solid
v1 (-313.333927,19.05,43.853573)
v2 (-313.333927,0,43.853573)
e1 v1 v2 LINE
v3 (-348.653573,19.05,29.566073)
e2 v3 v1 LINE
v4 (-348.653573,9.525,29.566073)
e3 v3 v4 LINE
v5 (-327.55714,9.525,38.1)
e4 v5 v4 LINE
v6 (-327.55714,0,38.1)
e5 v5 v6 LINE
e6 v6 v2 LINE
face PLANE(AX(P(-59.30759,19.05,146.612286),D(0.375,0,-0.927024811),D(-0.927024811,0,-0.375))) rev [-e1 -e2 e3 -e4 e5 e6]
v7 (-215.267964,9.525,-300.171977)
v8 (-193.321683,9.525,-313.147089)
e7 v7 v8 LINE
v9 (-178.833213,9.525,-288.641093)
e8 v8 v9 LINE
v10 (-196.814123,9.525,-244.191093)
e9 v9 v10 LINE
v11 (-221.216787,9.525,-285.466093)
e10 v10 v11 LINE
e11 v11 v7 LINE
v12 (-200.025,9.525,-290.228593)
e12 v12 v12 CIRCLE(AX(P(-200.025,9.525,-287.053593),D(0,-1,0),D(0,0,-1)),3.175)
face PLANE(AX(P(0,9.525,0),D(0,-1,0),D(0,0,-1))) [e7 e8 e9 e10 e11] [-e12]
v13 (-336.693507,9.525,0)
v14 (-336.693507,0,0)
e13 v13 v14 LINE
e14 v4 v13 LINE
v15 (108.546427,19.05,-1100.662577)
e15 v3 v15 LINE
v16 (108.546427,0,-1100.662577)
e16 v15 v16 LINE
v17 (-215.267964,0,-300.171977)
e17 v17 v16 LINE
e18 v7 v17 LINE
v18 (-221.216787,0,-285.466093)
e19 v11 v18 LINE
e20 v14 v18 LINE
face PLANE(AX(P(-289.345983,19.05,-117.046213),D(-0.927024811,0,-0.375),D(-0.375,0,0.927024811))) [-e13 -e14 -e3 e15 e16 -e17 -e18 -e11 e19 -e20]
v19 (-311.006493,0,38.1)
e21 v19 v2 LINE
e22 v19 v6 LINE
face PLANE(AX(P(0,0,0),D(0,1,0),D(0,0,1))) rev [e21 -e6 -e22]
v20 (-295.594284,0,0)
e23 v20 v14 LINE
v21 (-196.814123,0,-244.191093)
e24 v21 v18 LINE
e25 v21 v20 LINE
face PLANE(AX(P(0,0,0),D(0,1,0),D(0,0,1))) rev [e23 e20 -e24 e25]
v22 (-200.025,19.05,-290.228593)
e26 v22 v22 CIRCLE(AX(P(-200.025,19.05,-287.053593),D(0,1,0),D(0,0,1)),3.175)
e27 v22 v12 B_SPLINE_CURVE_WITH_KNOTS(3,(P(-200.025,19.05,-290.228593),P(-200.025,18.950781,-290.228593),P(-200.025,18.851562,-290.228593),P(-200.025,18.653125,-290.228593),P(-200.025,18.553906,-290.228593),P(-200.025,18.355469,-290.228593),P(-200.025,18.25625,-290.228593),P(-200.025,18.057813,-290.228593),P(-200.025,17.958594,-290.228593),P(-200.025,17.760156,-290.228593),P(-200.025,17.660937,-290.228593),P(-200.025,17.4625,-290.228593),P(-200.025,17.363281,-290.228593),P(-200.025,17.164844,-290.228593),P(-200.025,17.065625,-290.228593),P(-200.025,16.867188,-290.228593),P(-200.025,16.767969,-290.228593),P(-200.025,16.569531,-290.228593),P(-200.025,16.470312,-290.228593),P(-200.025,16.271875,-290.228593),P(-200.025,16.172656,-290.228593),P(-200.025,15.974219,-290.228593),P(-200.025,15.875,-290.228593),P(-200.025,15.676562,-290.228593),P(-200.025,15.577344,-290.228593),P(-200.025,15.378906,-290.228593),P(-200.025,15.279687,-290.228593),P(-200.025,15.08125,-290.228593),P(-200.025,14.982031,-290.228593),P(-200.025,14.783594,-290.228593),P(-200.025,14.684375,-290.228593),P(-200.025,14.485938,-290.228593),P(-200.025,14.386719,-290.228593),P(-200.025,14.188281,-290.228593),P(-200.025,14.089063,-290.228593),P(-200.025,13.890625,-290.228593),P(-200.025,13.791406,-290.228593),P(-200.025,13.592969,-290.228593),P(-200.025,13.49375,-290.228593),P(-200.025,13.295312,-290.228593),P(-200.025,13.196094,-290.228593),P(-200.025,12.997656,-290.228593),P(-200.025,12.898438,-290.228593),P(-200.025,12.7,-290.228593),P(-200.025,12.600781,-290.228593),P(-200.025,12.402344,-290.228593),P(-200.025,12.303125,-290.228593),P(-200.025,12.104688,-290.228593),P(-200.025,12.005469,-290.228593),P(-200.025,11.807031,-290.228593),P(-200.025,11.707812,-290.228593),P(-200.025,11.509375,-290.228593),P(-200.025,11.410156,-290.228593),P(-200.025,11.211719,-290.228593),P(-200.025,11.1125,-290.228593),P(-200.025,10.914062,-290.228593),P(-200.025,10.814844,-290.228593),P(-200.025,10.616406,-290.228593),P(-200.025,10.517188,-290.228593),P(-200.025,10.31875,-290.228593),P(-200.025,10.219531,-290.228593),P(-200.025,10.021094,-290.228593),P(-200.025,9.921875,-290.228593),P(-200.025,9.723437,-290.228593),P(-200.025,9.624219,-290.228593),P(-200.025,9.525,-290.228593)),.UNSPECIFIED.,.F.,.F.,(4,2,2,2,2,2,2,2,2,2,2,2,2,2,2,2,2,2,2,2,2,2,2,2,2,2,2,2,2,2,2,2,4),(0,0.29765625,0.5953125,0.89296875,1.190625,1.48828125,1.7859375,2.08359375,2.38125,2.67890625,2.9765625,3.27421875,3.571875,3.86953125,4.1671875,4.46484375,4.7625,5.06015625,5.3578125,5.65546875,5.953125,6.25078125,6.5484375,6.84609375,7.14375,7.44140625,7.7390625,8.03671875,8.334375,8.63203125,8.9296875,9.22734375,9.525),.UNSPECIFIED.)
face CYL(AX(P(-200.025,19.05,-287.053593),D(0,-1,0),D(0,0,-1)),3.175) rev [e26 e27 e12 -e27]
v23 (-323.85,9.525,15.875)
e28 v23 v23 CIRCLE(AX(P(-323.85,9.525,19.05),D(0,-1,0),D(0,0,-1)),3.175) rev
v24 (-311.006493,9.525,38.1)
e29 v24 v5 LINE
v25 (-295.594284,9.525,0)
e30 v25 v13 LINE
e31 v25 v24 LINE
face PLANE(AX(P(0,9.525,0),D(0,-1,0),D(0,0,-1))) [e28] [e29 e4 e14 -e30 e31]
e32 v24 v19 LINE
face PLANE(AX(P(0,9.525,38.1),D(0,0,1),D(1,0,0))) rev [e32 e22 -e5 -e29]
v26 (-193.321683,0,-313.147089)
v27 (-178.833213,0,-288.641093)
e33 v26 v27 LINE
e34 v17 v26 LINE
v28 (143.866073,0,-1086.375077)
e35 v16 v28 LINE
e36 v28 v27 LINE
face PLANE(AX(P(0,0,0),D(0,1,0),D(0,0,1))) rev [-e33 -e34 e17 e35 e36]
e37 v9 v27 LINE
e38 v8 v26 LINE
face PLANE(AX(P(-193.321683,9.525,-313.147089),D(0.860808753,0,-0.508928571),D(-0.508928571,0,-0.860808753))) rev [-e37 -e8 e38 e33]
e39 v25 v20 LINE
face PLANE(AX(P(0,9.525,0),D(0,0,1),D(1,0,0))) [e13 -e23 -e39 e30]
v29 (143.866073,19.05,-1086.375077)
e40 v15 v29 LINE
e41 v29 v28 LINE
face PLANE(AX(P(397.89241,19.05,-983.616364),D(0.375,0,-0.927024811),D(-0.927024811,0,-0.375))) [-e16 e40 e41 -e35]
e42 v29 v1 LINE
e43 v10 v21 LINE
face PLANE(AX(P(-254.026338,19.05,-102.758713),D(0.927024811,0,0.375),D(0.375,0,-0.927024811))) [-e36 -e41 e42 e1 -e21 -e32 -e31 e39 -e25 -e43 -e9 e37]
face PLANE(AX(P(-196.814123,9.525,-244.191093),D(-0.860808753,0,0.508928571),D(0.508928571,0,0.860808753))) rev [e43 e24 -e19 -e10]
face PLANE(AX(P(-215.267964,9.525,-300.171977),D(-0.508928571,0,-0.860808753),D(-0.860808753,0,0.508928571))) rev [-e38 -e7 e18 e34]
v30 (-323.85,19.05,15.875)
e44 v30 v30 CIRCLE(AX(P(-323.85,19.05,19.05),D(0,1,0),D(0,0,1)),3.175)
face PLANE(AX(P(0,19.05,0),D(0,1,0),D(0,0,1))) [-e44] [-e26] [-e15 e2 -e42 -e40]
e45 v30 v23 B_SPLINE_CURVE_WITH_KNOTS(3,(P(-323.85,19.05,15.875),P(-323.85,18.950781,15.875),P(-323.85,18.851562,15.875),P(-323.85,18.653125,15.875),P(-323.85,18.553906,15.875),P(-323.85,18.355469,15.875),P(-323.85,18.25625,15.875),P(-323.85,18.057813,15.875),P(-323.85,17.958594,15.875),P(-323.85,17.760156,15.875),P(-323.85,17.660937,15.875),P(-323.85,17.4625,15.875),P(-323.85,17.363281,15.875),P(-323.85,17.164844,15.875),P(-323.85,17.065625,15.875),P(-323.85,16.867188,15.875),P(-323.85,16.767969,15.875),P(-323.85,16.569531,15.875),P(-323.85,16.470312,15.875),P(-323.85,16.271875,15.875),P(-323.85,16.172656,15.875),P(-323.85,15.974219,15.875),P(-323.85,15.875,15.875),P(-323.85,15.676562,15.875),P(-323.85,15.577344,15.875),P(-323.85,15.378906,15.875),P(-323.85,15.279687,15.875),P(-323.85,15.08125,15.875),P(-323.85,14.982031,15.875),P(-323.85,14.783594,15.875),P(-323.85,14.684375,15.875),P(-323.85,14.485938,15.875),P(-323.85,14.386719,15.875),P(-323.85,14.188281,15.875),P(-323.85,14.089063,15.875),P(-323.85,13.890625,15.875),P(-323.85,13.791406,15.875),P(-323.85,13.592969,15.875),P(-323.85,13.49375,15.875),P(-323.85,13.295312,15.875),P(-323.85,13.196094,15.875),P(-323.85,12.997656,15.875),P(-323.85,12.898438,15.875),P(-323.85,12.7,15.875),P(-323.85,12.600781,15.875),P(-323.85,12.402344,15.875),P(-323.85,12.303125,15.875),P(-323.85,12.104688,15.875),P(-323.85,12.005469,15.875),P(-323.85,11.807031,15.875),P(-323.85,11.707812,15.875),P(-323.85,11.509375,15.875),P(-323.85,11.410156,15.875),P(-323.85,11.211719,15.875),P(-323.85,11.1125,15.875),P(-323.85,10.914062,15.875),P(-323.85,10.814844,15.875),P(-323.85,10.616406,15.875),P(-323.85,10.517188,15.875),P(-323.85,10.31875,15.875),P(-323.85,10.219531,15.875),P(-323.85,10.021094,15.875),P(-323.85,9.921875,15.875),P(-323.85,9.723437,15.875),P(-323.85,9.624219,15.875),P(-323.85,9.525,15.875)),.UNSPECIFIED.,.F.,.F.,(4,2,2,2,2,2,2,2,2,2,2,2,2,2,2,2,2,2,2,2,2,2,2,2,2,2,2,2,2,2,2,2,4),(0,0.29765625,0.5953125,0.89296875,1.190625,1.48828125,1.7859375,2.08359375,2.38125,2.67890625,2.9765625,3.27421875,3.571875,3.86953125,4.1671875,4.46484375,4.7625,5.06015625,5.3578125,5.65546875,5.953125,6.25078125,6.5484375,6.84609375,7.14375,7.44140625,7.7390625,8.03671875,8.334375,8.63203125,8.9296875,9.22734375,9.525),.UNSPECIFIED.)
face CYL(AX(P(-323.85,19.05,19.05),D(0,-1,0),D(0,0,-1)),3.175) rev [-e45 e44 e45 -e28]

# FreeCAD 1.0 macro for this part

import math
import FreeCAD as App
import Part
import Sketcher

V = App.Vector
Q = App.Units.Quantity

doc = App.newDocument("Part")
params = doc.addObject("Spreadsheet::Sheet", "Params")
for row, (alias, value) in enumerate([
    ("sketch1_radius", "0.125 in"),
    ("sketch1_length", "1.5 in"),
    ("sketch1_length2", "0.75 in"),
    ("pad1_length", "0.75 in"),
    ("sketch2_diameter", "0.25 in"),
    ("pocket1_length", "0.375 in"),
    ("pocket2_length", "0.375 in"),
], start=1):
    params.set(f"A{row}", alias)
    params.set(f"B{row}", "=" + value)
    params.setAlias(f"B{row}", alias)

body = doc.addObject("PartDesign::Body", "Body")

sketch1 = doc.addObject("Sketcher::SketchObject", "Sketch")
body.addObject(sketch1)
sketch1.AttachmentSupport = (doc.XZ_Plane, [""])
sketch1.MapMode = "FlatFace"
sketch1.addGeometry([
    Part.LineSegment(V(-295.6, 0, 0), V(-196.8, -244.2, 0)),
    Part.LineSegment(V(-196.8, -244.2, 0), V(-178.8, -288.6, 0)),
    Part.LineSegment(V(-178.8, -288.6, 0), V(143.9, -1086.4, 0)),
    Part.LineSegment(V(143.9, -1086.4, 0), V(108.5, -1100.7, 0)),
    Part.LineSegment(V(108.5, -1100.7, 0), V(-215.3, -300.2, 0)),
    Part.LineSegment(V(-215.3, -300.2, 0), V(-221.2, -285.5, 0)),
    Part.LineSegment(V(-221.2, -285.5, 0), V(-336.7, 0, 0)),
    Part.LineSegment(V(-336.7, 0, 0), V(-341.5, 11.9, 0)),
    Part.LineSegment(V(-341.5, 11.9, 0), V(-348.7, 29.6, 0)),
    Part.LineSegment(V(-348.7, 29.6, 0), V(-327.6, 38.1, 0)),
    Part.LineSegment(V(-327.6, 38.1, 0), V(-313.3, 43.9, 0)),
    Part.LineSegment(V(-313.3, 43.9, 0), V(-311, 38.1, 0)),
    Part.LineSegment(V(-311, 38.1, 0), V(-306.2, 26.2, 0)),
    Part.LineSegment(V(-306.2, 26.2, 0), V(-303.3, 19.1, 0)),
    Part.LineSegment(V(-303.3, 19.1, 0), V(-295.6, 0, 0)),
    Part.ArcOfCircle(Part.Circle(V(-200, -287.1, 0), V(0, 0, 1), 3.2), math.radians(59), math.radians(112)),
    Part.ArcOfCircle(Part.Circle(V(-200, -287.1, 0), V(0, 0, 1), 3.2), math.radians(112), math.radians(329)),
    Part.ArcOfCircle(Part.Circle(V(-200, -287.1, 0), V(0, 0, 1), 3.2), math.radians(-31), math.radians(0)),
    Part.ArcOfCircle(Part.Circle(V(-200, -287.1, 0), V(0, 0, 1), 3.2), math.radians(0), math.radians(59)),
    Part.ArcOfCircle(Part.Circle(V(-323.9, 19.1, 0), V(0, 0, 1), 3.2), math.radians(22), math.radians(202)),
    Part.ArcOfCircle(Part.Circle(V(-323.8, 19.1, 0), V(0, 0, 1), 3.2), math.radians(-158), math.radians(-68)),
    Part.ArcOfCircle(Part.Circle(V(-323.9, 19.1, 0), V(0, 0, 1), 3.2), math.radians(-68), math.radians(0)),
    Part.ArcOfCircle(Part.Circle(V(-323.9, 19, 0), V(0, 0, 1), 3.2), math.radians(0), math.radians(22)),
], False)
sketch1.addConstraint([
    Sketcher.Constraint("Coincident", 0, 2, 1, 1),
    Sketcher.Constraint("Coincident", 1, 2, 2, 1),
    Sketcher.Constraint("Coincident", 2, 2, 3, 1),
    Sketcher.Constraint("Coincident", 3, 2, 4, 1),
    Sketcher.Constraint("Coincident", 4, 2, 5, 1),
    Sketcher.Constraint("Coincident", 5, 2, 6, 1),
    Sketcher.Constraint("Coincident", 6, 2, 7, 1),
    Sketcher.Constraint("Coincident", 7, 2, 8, 1),
    Sketcher.Constraint("Coincident", 8, 2, 9, 1),
    Sketcher.Constraint("Coincident", 9, 2, 10, 1),
    Sketcher.Constraint("Coincident", 10, 2, 11, 1),
    Sketcher.Constraint("Coincident", 11, 2, 12, 1),
    Sketcher.Constraint("Coincident", 12, 2, 13, 1),
    Sketcher.Constraint("Coincident", 13, 2, 14, 1),
    Sketcher.Constraint("Coincident", 14, 2, 0, 1),
    Sketcher.Constraint("Tangent", 15, 2, 16, 1),
    Sketcher.Constraint("Tangent", 16, 2, 17, 1),
    Sketcher.Constraint("Tangent", 17, 2, 18, 1),
    Sketcher.Constraint("Tangent", 18, 2, 15, 1),
    Sketcher.Constraint("Tangent", 19, 2, 20, 1),
    Sketcher.Constraint("Tangent", 20, 2, 21, 1),
    Sketcher.Constraint("Tangent", 21, 2, 22, 1),
    Sketcher.Constraint("Tangent", 22, 2, 19, 1),
    Sketcher.Constraint("Equal", 15, 16),
    Sketcher.Constraint("Equal", 18, 19),
    Sketcher.Constraint("Equal", 19, 20),
    Sketcher.Constraint("PointOnObject", 6, 2, -1),
    Sketcher.Constraint("PointOnObject", 14, 2, -1),
    Sketcher.Constraint("Parallel", 0, 1),
    Sketcher.Constraint("Parallel", 1, 2),
    Sketcher.Constraint("Perpendicular", 2, 3),
    Sketcher.Constraint("Perpendicular", 3, 4),
    Sketcher.Constraint("Parallel", 4, 5),
    Sketcher.Constraint("Parallel", 5, 6),
    Sketcher.Constraint("Parallel", 6, 7),
    Sketcher.Constraint("Parallel", 7, 8),
    Sketcher.Constraint("Perpendicular", 8, 9),
    Sketcher.Constraint("Parallel", 9, 10),
    Sketcher.Constraint("Perpendicular", 10, 11),
    Sketcher.Constraint("Parallel", 11, 12),
    Sketcher.Constraint("Parallel", 12, 13),
    Sketcher.Constraint("Parallel", 13, 14),
    Sketcher.Constraint("Horizontal", 9, 2, 11, 2),
    Sketcher.Constraint("Horizontal", 22, 3, 13, 2),
    Sketcher.Constraint("Horizontal", 18, 3, 17, 2),
    Sketcher.Constraint("Horizontal", 13, 2, 21, 2),
    Sketcher.Constraint("Equal", 7, 12),
    Sketcher.Constraint("Radius", 15, Q("0.125 in")),
    Sketcher.Constraint("Distance", 3, Q("1.5 in")),
    Sketcher.Constraint("DistanceY", -1, 1, 9, 2, Q("1.5 in")),
    Sketcher.Constraint("Distance", 8, Q("0.75 in")),
    Sketcher.Constraint("DistanceX", 19, 3, -1, 1, Q("12.75 in")),
    Sketcher.Constraint("DistanceY", -1, 1, 19, 3, Q("0.75 in")),
    Sketcher.Constraint("DistanceX", 17, 2, -1, 1, Q("7.75 in")),
    Sketcher.Constraint("DistanceY", 1, 2, 0, 2, Q("1.75 in")),
    Sketcher.Constraint("DistanceY", -1, 1, 7, 2, Q("0.46875 in")),
    Sketcher.Constraint("DistanceX", 15, 2, -1, 1, Q("7.921875 in")),
    Sketcher.Constraint("DistanceY", -1, 1, 19, 2, Q("0.703125 in")),
    Sketcher.Constraint("DistanceX", 20, 2, -1, 1, Q("12.703125 in")),
    Sketcher.Constraint("DistanceY", -1, 1, 22, 2, Q("0.796875 in")),
    Sketcher.Constraint("DistanceY", 15, 3, 0, 2, Q("1.6875 in")),
    Sketcher.Constraint("DistanceY", 3, 2, 2, 2, Q("0.5625 in")),
    Sketcher.Constraint("DistanceY", 17, 3, 5, 2, Q("0.0625 in")),
    Sketcher.Constraint("Distance", 0, Q("263.413762 mm")),
    Sketcher.Constraint("Distance", 5, Q("15.863528 mm")),
    Sketcher.Constraint("DistanceX", 9, 2, -1, 1, Q("327.55714 mm")),
    Sketcher.Constraint("DistanceY", 16, 2, -1, 1, Q("288.669441 mm")),
    Sketcher.Constraint("DistanceX", 18, 2, -1, 1, Q("198.409152 mm")),
    Sketcher.Constraint("DistanceX", 1, 2, 3, 2, Q("287.37964 mm")),
])
sketch1.setExpression("Constraints[47]", "Params.sketch1_radius")
sketch1.setExpression("Constraints[48]", "Params.sketch1_length")
sketch1.setExpression("Constraints[50]", "Params.sketch1_length2")
pad1 = doc.addObject("PartDesign::Pad", "Pad")
body.addObject(pad1)
pad1.Profile = sketch1
pad1.setExpression("Length", "Params.pad1_length")
pad1.Reversed = True

sketch2 = doc.addObject("Sketcher::SketchObject", "Sketch001")
body.addObject(sketch2)
sketch2.AttachmentSupport = (doc.XZ_Plane, [""])
sketch2.MapMode = "FlatFace"
sketch2.addGeometry([
    Part.LineSegment(V(-327.6, 38.1, 0), V(-348.7, 29.6, 0)),
    Part.LineSegment(V(-348.7, 29.6, 0), V(-336.7, 0, 0)),
    Part.LineSegment(V(-336.7, 0, 0), V(-295.6, 0, 0)),
    Part.LineSegment(V(-295.6, 0, 0), V(-311, 38.1, 0)),
    Part.LineSegment(V(-311, 38.1, 0), V(-327.6, 38.1, 0)),
    Part.Circle(V(-323.9, 19.1, 0), V(0, 0, 1), 3.2),
], False)
sketch2.addConstraint([
    Sketcher.Constraint("Coincident", 0, 2, 1, 1),
    Sketcher.Constraint("Coincident", 1, 2, 2, 1),
    Sketcher.Constraint("Coincident", 2, 2, 3, 1),
    Sketcher.Constraint("Coincident", 3, 2, 4, 1),
    Sketcher.Constraint("Coincident", 4, 2, 0, 1),
    Sketcher.Constraint("Horizontal", 2),
    Sketcher.Constraint("Horizontal", 4),
    Sketcher.Constraint("PointOnObject", 1, 2, -1),
    Sketcher.Constraint("Perpendicular", 0, 1),
    Sketcher.Constraint("Parallel", 1, 3),
    Sketcher.Constraint("Diameter", 5, Q("0.25 in")),
    Sketcher.Constraint("DistanceY", -1, 1, 3, 2, Q("1.5 in")),
    Sketcher.Constraint("DistanceX", 5, 3, -1, 1, Q("12.75 in")),
    Sketcher.Constraint("DistanceY", -1, 1, 5, 3, Q("0.75 in")),
    Sketcher.Constraint("Distance", 0, Q("22.75714 mm")),
    Sketcher.Constraint("DistanceX", 2, 1, 2, 2, Q("41.099224 mm")),
    Sketcher.Constraint("DistanceX", 4, 2, 4, 1, Q("16.550647 mm")),
    Sketcher.Constraint("DistanceX", 4, 2, -1, 1, Q("327.55714 mm")),
])
sketch2.setExpression("Constraints[10]", "Params.sketch2_diameter")
pocket1 = doc.addObject("PartDesign::Pocket", "Pocket")
body.addObject(pocket1)
pocket1.Profile = sketch2
pocket1.setExpression("Length", "Params.pocket1_length")

sketch3 = doc.addObject("Sketcher::SketchObject", "Sketch002")
body.addObject(sketch3)
sketch3.AttachmentSupport = (doc.XZ_Plane, [""])
sketch3.MapMode = "FlatFace"
sketch3.addGeometry([
    Part.LineSegment(V(-197, -244, 0), V(-221, -285, 0)),
    Part.LineSegment(V(-221, -285, 0), V(-215, -300, 0)),
    Part.LineSegment(V(-215, -300, 0), V(-193, -313, 0)),
    Part.LineSegment(V(-193, -313, 0), V(-179, -289, 0)),
    Part.LineSegment(V(-179, -289, 0), V(-197, -244, 0)),
], False)
sketch3.addConstraint([
    Sketcher.Constraint("Coincident", 0, 2, 1, 1),
    Sketcher.Constraint("Coincident", 1, 2, 2, 1),
    Sketcher.Constraint("Coincident", 2, 2, 3, 1),
    Sketcher.Constraint("Coincident", 3, 2, 4, 1),
    Sketcher.Constraint("Coincident", 4, 2, 0, 1),
    Sketcher.Constraint("Perpendicular", 0, 2),
    Sketcher.Constraint("Perpendicular", 2, 3),
    Sketcher.Constraint("Parallel", 1, 4),
    Sketcher.Constraint("Equal", 0, 4),
    Sketcher.Constraint("DistanceY", 3, 2, 4, 2, Q("1.75 in")),
    Sketcher.Constraint("DistanceY", 3, 2, 0, 2, Q("0.125 in")),
    Sketcher.Constraint("Distance", 1, Q("15.863528 mm")),
    Sketcher.Constraint("DistanceY", 2, 2, -1, 1, Q("313.147089 mm")),
    Sketcher.Constraint("DistanceX", 1, 2, 2, 2, Q("21.946282 mm")),
    Sketcher.Constraint("DistanceX", 0, 2, -1, 1, Q("221.216787 mm")),
])
pocket2 = doc.addObject("PartDesign::Pocket", "Pocket001")
body.addObject(pocket2)
pocket2.Profile = sketch3
pocket2.setExpression("Length", "Params.pocket2_length")

doc.recompute()
